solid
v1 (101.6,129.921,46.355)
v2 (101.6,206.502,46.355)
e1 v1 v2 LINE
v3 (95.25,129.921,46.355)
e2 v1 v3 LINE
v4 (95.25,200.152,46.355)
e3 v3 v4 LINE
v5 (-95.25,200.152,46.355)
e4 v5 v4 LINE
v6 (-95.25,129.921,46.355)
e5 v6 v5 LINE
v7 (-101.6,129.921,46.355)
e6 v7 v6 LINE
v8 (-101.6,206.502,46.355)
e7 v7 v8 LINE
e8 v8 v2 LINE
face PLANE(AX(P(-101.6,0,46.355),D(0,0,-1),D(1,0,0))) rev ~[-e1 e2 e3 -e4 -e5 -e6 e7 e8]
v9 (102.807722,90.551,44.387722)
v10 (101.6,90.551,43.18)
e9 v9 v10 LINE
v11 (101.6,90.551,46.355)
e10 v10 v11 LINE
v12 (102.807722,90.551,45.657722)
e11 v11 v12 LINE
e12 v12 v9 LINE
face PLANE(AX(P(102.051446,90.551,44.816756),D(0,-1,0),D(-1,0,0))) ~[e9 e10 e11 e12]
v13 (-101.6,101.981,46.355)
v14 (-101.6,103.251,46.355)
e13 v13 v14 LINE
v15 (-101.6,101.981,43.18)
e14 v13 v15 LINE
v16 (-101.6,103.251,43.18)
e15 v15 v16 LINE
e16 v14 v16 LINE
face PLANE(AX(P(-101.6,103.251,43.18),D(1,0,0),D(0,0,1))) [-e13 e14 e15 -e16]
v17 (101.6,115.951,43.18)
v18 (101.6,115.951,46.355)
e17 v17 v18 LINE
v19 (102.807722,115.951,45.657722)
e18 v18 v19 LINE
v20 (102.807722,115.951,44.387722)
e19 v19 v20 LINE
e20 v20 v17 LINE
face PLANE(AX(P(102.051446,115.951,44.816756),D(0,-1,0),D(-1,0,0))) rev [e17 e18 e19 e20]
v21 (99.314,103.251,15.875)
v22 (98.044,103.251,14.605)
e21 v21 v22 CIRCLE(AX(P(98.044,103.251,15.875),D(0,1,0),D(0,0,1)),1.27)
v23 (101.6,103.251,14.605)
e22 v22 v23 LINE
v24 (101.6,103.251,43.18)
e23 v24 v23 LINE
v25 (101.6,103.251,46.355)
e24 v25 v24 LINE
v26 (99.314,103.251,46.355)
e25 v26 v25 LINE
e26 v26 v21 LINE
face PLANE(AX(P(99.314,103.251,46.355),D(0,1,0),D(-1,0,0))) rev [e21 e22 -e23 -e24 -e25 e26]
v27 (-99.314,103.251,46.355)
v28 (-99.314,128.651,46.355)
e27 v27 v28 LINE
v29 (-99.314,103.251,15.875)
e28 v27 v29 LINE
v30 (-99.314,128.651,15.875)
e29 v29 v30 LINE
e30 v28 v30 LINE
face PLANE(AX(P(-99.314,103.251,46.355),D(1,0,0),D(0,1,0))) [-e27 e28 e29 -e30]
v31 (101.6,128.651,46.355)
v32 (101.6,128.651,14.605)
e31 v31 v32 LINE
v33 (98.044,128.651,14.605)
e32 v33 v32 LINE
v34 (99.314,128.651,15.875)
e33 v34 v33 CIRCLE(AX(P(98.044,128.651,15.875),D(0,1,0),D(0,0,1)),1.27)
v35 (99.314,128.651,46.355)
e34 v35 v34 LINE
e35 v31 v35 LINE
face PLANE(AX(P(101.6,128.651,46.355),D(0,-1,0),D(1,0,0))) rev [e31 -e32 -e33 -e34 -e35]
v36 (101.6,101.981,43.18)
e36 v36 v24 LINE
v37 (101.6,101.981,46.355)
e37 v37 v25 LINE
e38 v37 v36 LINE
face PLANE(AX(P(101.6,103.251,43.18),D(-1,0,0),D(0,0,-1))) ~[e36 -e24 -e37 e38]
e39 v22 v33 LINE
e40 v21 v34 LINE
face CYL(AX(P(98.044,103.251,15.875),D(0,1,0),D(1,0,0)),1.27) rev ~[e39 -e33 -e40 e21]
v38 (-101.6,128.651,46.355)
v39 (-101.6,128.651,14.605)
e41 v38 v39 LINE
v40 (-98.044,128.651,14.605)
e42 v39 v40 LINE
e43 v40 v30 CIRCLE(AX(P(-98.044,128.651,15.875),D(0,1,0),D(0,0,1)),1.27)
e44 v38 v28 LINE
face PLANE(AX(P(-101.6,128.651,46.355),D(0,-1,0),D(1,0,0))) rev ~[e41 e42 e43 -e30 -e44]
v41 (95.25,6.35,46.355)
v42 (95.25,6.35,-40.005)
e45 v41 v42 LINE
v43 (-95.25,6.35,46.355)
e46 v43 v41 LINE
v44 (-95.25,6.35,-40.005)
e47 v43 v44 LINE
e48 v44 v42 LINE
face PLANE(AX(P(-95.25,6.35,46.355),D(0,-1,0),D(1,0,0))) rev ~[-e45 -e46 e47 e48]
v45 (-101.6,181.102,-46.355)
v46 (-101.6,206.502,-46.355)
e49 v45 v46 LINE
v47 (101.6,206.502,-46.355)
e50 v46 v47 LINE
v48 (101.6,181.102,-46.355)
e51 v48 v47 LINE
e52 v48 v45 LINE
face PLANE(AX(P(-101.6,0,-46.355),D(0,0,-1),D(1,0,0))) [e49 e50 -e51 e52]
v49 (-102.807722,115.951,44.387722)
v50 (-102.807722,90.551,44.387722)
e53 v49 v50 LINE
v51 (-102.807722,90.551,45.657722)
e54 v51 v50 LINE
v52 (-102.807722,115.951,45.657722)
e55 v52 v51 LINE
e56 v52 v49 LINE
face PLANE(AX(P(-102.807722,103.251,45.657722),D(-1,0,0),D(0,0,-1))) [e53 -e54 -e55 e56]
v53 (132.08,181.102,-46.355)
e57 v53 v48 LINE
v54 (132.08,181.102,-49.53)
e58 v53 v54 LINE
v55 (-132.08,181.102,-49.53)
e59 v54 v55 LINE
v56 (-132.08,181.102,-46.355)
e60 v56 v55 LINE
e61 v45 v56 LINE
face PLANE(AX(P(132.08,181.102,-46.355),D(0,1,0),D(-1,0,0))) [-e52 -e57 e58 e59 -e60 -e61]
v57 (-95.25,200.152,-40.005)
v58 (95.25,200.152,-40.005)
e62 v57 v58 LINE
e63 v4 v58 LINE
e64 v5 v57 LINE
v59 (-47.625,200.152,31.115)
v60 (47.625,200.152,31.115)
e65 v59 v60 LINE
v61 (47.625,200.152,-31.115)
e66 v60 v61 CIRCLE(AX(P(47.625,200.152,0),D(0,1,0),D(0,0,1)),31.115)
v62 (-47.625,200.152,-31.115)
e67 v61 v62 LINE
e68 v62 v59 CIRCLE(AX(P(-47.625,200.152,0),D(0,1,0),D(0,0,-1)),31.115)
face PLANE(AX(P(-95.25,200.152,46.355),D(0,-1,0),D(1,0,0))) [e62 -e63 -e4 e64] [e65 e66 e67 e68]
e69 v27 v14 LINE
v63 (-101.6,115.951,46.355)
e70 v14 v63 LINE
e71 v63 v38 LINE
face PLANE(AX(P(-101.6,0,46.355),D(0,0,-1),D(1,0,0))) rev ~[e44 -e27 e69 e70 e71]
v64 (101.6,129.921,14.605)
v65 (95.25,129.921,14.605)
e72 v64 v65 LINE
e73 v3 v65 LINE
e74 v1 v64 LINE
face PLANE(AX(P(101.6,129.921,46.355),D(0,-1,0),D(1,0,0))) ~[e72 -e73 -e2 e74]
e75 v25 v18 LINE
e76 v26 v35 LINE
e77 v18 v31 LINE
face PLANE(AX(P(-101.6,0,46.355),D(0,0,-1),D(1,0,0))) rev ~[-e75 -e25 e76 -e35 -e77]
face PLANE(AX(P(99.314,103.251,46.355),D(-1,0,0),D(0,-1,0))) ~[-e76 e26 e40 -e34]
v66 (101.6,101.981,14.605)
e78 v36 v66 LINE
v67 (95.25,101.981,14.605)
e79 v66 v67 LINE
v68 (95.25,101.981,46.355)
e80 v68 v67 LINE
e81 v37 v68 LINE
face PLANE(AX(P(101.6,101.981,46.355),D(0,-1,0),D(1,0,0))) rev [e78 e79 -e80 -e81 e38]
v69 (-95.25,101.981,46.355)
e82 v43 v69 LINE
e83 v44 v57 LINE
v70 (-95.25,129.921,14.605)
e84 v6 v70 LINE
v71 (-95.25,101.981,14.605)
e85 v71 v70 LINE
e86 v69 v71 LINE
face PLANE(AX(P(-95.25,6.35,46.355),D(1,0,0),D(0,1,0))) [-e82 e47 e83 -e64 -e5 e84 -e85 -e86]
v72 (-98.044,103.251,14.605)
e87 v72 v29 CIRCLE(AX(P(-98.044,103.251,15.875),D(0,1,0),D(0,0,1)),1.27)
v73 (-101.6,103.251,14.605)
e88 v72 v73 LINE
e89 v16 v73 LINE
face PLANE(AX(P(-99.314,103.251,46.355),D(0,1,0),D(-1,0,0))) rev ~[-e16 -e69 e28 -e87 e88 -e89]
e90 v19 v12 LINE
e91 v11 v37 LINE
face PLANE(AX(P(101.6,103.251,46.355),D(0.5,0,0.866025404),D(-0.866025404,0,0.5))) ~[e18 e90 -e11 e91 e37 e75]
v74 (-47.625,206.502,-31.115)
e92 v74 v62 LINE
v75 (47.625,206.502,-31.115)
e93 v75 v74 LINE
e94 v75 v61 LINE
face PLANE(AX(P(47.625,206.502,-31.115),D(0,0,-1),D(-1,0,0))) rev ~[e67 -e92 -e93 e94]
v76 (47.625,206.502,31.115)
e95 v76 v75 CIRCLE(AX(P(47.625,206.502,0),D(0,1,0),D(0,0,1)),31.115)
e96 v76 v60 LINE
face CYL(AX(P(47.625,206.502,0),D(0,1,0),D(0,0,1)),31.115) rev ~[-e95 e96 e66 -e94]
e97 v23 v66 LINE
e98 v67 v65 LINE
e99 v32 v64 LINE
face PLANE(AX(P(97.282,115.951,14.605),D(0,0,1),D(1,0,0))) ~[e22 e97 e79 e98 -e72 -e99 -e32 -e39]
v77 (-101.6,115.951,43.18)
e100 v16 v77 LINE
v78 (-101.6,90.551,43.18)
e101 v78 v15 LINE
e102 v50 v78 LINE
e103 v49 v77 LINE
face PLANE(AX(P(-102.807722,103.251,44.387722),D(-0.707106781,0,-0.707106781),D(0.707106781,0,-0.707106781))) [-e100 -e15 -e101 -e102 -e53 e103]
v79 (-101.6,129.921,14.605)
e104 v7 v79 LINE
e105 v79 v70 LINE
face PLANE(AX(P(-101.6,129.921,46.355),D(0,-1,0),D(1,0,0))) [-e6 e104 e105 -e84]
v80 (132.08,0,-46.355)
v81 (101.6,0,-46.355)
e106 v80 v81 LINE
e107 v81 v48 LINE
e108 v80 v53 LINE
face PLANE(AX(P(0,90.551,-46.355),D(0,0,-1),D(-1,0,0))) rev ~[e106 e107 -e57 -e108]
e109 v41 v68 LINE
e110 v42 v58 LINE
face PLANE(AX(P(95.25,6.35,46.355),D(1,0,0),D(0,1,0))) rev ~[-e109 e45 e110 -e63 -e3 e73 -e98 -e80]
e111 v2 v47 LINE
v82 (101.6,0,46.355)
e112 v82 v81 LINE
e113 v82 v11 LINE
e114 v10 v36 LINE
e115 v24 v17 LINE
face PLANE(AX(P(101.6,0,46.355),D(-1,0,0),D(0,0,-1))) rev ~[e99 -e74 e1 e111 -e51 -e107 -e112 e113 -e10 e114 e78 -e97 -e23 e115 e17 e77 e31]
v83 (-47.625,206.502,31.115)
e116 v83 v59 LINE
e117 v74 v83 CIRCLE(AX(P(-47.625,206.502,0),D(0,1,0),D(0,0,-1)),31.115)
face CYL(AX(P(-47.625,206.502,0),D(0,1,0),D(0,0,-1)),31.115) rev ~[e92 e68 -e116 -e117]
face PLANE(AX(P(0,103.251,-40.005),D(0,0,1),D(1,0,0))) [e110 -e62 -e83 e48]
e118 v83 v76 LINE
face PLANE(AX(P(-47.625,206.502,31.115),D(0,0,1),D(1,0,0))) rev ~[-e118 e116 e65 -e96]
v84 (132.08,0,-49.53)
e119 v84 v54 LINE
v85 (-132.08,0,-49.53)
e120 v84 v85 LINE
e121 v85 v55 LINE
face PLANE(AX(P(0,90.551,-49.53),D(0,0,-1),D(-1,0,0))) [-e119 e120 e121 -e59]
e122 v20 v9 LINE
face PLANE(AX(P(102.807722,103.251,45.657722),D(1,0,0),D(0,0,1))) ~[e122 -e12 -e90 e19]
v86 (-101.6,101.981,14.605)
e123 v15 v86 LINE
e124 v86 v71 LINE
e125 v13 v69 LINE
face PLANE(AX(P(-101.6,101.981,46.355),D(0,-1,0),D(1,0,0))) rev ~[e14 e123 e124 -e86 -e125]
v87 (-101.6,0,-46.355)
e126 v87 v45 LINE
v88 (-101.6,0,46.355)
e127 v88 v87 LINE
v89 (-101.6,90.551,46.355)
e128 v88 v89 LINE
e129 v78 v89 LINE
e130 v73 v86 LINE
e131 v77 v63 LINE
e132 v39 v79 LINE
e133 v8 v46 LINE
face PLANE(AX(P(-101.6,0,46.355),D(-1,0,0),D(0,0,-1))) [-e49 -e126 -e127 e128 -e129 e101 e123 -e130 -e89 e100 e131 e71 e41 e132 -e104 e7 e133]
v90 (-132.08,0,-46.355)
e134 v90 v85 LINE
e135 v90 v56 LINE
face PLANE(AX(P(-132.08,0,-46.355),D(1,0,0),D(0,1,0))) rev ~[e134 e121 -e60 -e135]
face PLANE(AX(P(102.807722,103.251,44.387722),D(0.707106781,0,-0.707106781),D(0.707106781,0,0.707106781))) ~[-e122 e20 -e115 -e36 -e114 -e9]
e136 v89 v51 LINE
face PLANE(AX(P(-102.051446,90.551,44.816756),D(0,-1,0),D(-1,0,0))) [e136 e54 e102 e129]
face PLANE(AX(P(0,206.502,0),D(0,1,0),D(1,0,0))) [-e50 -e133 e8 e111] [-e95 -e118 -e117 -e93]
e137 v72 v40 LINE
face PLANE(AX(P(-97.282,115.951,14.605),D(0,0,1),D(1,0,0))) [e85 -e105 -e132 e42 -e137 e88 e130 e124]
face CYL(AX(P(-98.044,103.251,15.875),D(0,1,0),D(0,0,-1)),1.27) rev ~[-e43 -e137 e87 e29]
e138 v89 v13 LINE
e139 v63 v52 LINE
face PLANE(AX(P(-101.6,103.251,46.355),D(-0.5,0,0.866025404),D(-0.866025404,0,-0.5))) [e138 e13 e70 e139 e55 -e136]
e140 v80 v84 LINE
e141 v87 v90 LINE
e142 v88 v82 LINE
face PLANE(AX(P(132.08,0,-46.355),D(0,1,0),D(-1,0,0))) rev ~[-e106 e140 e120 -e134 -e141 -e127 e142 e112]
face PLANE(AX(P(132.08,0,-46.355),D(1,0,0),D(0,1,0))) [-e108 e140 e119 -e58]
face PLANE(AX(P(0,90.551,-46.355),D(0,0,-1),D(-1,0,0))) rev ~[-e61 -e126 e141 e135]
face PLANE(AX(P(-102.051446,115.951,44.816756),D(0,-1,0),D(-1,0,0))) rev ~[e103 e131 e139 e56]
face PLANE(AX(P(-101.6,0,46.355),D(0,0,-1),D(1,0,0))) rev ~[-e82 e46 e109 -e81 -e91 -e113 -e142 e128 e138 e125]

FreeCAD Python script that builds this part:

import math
import FreeCAD as App
import Part
import Sketcher

V = App.Vector
Q = App.Units.Quantity


def edges_at(feature, points):
    """Names of the edges that pass closest to the given points."""
    edges = feature.Shape.Edges
    near = lambda p: min(range(len(edges)), key=lambda i: edges[i].distToShape(Part.Vertex(*p))[0])
    return sorted({f"Edge{near(p) + 1}" for p in points})


def add_polygon(sketch, points):
    """Adds a closed chain of lines whose ends are joined by coincident constraints."""
    first, n = sketch.GeometryCount, len(points)
    for a, b in zip(points, points[1:] + points[:1]):
        sketch.addGeometry(Part.LineSegment(App.Vector(*a, 0), App.Vector(*b, 0)), False)
    for i in range(n):
        sketch.addConstraint(Sketcher.Constraint("Coincident", first + i, 2, first + (i + 1) % n, 1))

doc = App.newDocument("Part")
params = doc.addObject("Spreadsheet::Sheet", "Params")
for row, (alias, value) in enumerate([
    ("sketch1_width", "8 in"),
    ("sketch1_height", "3.65 in"),
    ("pad1_length", "8.13 in"),
    ("sketch2_width", "7.5 in"),
    ("sketch2_height", "7.63 in"),
    ("pocket1_length", "3.4 in"),
    ("sketch3_radius", "1.225 in"),
    ("sketch3_width", "3.75 in"),
    ("sketch4_width", "10.4 in"),
    ("sketch4_height", "7.13 in"),
    ("pad2_length", "0.125 in"),
    ("sketch5_height", "1 in"),
    ("sketch5_height2", "1.1 in"),
    ("sketch5_width", "0.09 in"),
    ("sketch5_width2", "0.25 in"),
    ("pocket3_length", "1.25 in"),
    ("fillet_radius", "0.05 in"),
    ("sketch6_height", "0.05 in"),
    ("sketch6_height2", "0.125 in"),
    ("pad3_length", "1 in"),
    ("fillet2_radius", "0.05 in"),
], start=1):
    params.set(f"A{row}", alias)
    params.set(f"B{row}", "=" + value)
    params.setAlias(f"B{row}", alias)

body = doc.addObject("PartDesign::Body", "Body")

sketch1 = doc.addObject("Sketcher::SketchObject", "Sketch")
body.addObject(sketch1)
sketch1.AttachmentSupport = (doc.XZ_Plane, [""])
sketch1.MapMode = "FlatFace"
add_polygon(sketch1, [(-101.6, -46.355), (-101.6, 46.355), (101.6, 46.355), (101.6, -46.355)])
sketch1.addConstraint(Sketcher.Constraint("Vertical", 0))
sketch1.addConstraint(Sketcher.Constraint("Horizontal", 1))
sketch1.addConstraint(Sketcher.Constraint("Vertical", 2))
sketch1.addConstraint(Sketcher.Constraint("Horizontal", 3))
sketch1.addConstraint(Sketcher.Constraint("Symmetric", 0, 2, 2, 2, -1, 1))
sketch1.addConstraint(Sketcher.Constraint("DistanceX", 1, 1, 1, 2, Q("8 in")))
sketch1.addConstraint(Sketcher.Constraint("DistanceY", 0, 1, 0, 2, Q("3.65 in")))
sketch1.setExpression("Constraints[9]", "Params.sketch1_width")
sketch1.setExpression("Constraints[10]", "Params.sketch1_height")
pad1 = doc.addObject("PartDesign::Pad", "Pad")
body.addObject(pad1)
pad1.Profile = sketch1
pad1.setExpression("Length", "Params.pad1_length")
pad1.Reversed = True

sketch2 = doc.addObject("Sketcher::SketchObject", "Sketch001")
body.addObject(sketch2)
sketch2.AttachmentSupport = (doc.XY_Plane, [""])
sketch2.MapMode = "FlatFace"
sketch2.AttachmentOffset = App.Placement(V(0, 0, 1.825 * 25.4), App.Rotation())
add_polygon(sketch2, [(-95.25, 200.152), (-95.25, 6.35), (95.25, 6.35), (95.25, 200.152)])
sketch2.addConstraint(Sketcher.Constraint("Vertical", 0))
sketch2.addConstraint(Sketcher.Constraint("Horizontal", 1))
sketch2.addConstraint(Sketcher.Constraint("Vertical", 2))
sketch2.addConstraint(Sketcher.Constraint("Horizontal", 3))
sketch2.addConstraint(Sketcher.Constraint("DistanceX", 1, 1, 1, 2, Q("7.5 in")))
sketch2.addConstraint(Sketcher.Constraint("DistanceY", 0, 2, 0, 1, Q("7.63 in")))
sketch2.addConstraint(Sketcher.Constraint("DistanceX", 0, 2, -1, 1, Q("3.75 in")))
sketch2.addConstraint(Sketcher.Constraint("DistanceY", -1, 1, 0, 2, Q("0.25 in")))
sketch2.setExpression("Constraints[8]", "Params.sketch2_width")
sketch2.setExpression("Constraints[9]", "Params.sketch2_height")
pocket1 = doc.addObject("PartDesign::Pocket", "Pocket")
body.addObject(pocket1)
pocket1.Profile = sketch2
pocket1.setExpression("Length", "Params.pocket1_length")

sketch3 = doc.addObject("Sketcher::SketchObject", "Sketch002")
body.addObject(sketch3)
sketch3.AttachmentSupport = (doc.XZ_Plane, [""])
sketch3.MapMode = "FlatFace"
sketch3.AttachmentOffset = App.Placement(V(0, 0, -8.13 * 25.4), App.Rotation())
sketch3.addGeometry(Part.LineSegment(V(47.625, 31.115, 0), V(-47.625, 31.115, 0)), False)
sketch3.addGeometry(Part.ArcOfCircle(Part.Circle(V(-47.625, 0, 0), V(0, 0, 1), 31.115), math.radians(90), math.radians(270)), False)
sketch3.addGeometry(Part.LineSegment(V(-47.625, -31.115, 0), V(47.625, -31.115, 0)), False)
sketch3.addGeometry(Part.ArcOfCircle(Part.Circle(V(47.625, 0, 0), V(0, 0, 1), 31.115), math.radians(-90), math.radians(90)), False)
sketch3.addConstraint(Sketcher.Constraint("Tangent", 0, 2, 1, 1))
sketch3.addConstraint(Sketcher.Constraint("Tangent", 1, 2, 2, 1))
sketch3.addConstraint(Sketcher.Constraint("Tangent", 2, 2, 3, 1))
sketch3.addConstraint(Sketcher.Constraint("Tangent", 3, 2, 0, 1))
sketch3.addConstraint(Sketcher.Constraint("Horizontal", 0))
sketch3.addConstraint(Sketcher.Constraint("Horizontal", 2))
sketch3.addConstraint(Sketcher.Constraint("Symmetric", 1, 3, 3, 3, -1, 1))
sketch3.addConstraint(Sketcher.Constraint("Radius", 1, Q("1.225 in")))
sketch3.addConstraint(Sketcher.Constraint("DistanceX", 0, 2, 0, 1, Q("3.75 in")))
sketch3.setExpression("Constraints[7]", "Params.sketch3_radius")
sketch3.setExpression("Constraints[8]", "Params.sketch3_width")
pocket2 = doc.addObject("PartDesign::Pocket", "Pocket001")
body.addObject(pocket2)
pocket2.Profile = sketch3
pocket2.Type = "UpToFirst"
pocket2.Reversed = True

sketch4 = doc.addObject("Sketcher::SketchObject", "Sketch003")
body.addObject(sketch4)
sketch4.AttachmentSupport = (doc.XY_Plane, [""])
sketch4.MapMode = "FlatFace"
sketch4.AttachmentOffset = App.Placement(V(0, 0, -1.825 * 25.4), App.Rotation())
add_polygon(sketch4, [(132.08, 181.102), (132.08, 0), (-132.08, 0), (-132.08, 181.102)])
sketch4.addConstraint(Sketcher.Constraint("Vertical", 0))
sketch4.addConstraint(Sketcher.Constraint("Horizontal", 1))
sketch4.addConstraint(Sketcher.Constraint("Vertical", 2))
sketch4.addConstraint(Sketcher.Constraint("Horizontal", 3))
sketch4.addConstraint(Sketcher.Constraint("Symmetric", 0, 2, 1, 2, -1, 1))
sketch4.addConstraint(Sketcher.Constraint("DistanceX", 1, 2, 1, 1, Q("10.4 in")))
sketch4.addConstraint(Sketcher.Constraint("DistanceY", 0, 2, 0, 1, Q("7.13 in")))
sketch4.setExpression("Constraints[9]", "Params.sketch4_width")
sketch4.setExpression("Constraints[10]", "Params.sketch4_height")
pad2 = doc.addObject("PartDesign::Pad", "Pad001")
body.addObject(pad2)
pad2.Profile = sketch4
pad2.setExpression("Length", "Params.pad2_length")
pad2.Reversed = True

sketch5 = doc.addObject("Sketcher::SketchObject", "Sketch004")
body.addObject(sketch5)
sketch5.AttachmentSupport = (doc.XY_Plane, [""])
sketch5.MapMode = "FlatFace"
sketch5.AttachmentOffset = App.Placement(V(0, 0, 1.825 * 25.4), App.Rotation())
add_polygon(sketch5, [(-99.314, 128.651), (-99.314, 103.251), (-101.6, 103.251), (-101.6, 101.981), (-95.25, 101.981), (-95.25, 129.921), (-101.6, 129.921), (-101.6, 128.651)])
sketch5.addConstraint(Sketcher.Constraint("Vertical", 0))
sketch5.addConstraint(Sketcher.Constraint("Horizontal", 1))
sketch5.addConstraint(Sketcher.Constraint("Vertical", 2))
sketch5.addConstraint(Sketcher.Constraint("Horizontal", 3))
sketch5.addConstraint(Sketcher.Constraint("Vertical", 4))
sketch5.addConstraint(Sketcher.Constraint("Horizontal", 5))
sketch5.addConstraint(Sketcher.Constraint("Vertical", 6))
sketch5.addConstraint(Sketcher.Constraint("Horizontal", 7))
sketch5.addConstraint(Sketcher.Constraint("Vertical", 2, 2, 5, 2))
sketch5.addConstraint(Sketcher.Constraint("Equal", 2, 6))
sketch5.addConstraint(Sketcher.Constraint("DistanceY", 0, 2, 0, 1, Q("1 in")))
sketch5.addConstraint(Sketcher.Constraint("DistanceY", 4, 1, 4, 2, Q("1.1 in")))
sketch5.addConstraint(Sketcher.Constraint("DistanceX", 1, 2, -1, 1, Q("4 in")))
sketch5.addConstraint(Sketcher.Constraint("DistanceX", 1, 2, 1, 1, Q("0.09 in")))
sketch5.addConstraint(Sketcher.Constraint("DistanceX", 3, 1, 3, 2, Q("0.25 in")))
sketch5.addConstraint(Sketcher.Constraint("DistanceY", -1, 1, 0, 2, Q("4.065 in")))
sketch5.setExpression("Constraints[18]", "Params.sketch5_height")
sketch5.setExpression("Constraints[19]", "Params.sketch5_height2")
sketch5.setExpression("Constraints[21]", "Params.sketch5_width")
sketch5.setExpression("Constraints[22]", "Params.sketch5_width2")
pocket3 = doc.addObject("PartDesign::Pocket", "Pocket002")
body.addObject(pocket3)
pocket3.Profile = sketch5
pocket3.setExpression("Length", "Params.pocket3_length")
doc.recompute()

fillet = doc.addObject("PartDesign::Fillet", "Fillet")
body.addObject(fillet)
fillet.Base = (pocket3, edges_at(pocket3, [(-99.314, 115.951, 14.605)]))
fillet.setExpression("Radius", "Params.fillet_radius")

sketch6 = doc.addObject("Sketcher::SketchObject", "Sketch005")
body.addObject(sketch6)
sketch6.AttachmentSupport = (doc.XZ_Plane, [""])
sketch6.MapMode = "FlatFace"
sketch6.AttachmentOffset = App.Placement(V(0, 0, -4.065 * 25.4), App.Rotation())
add_polygon(sketch6, [(-101.6, 46.355), (-102.807722, 45.657722), (-102.807722, 44.387722), (-101.6, 43.18)])
sketch6.addConstraint(Sketcher.Constraint("Vertical", 1))
sketch6.addConstraint(Sketcher.Constraint("Vertical", 3))
sketch6.addConstraint(Sketcher.Constraint("DistanceX", 2, 2, -1, 1, Q("4 in")))
sketch6.addConstraint(Sketcher.Constraint("Angle", 0, Q("-150 deg")))
sketch6.addConstraint(Sketcher.Constraint("Angle", 2, Q("-45 deg")))
sketch6.addConstraint(Sketcher.Constraint("DistanceY", 1, 2, 1, 1, Q("0.05 in")))
sketch6.addConstraint(Sketcher.Constraint("DistanceY", -1, 1, 2, 2, Q("1.7 in")))
sketch6.addConstraint(Sketcher.Constraint("DistanceY", 3, 1, 3, 2, Q("0.125 in")))
sketch6.setExpression("Constraints[9]", "Params.sketch6_height")
sketch6.setExpression("Constraints[11]", "Params.sketch6_height2")
pad3 = doc.addObject("PartDesign::Pad", "Pad002")
body.addObject(pad3)
pad3.Profile = sketch6
pad3.setExpression("Length", "Params.pad3_length")
pad3.Midplane = True
doc.recompute()

mirrored = doc.addObject("PartDesign::Mirrored", "Mirrored")
body.addObject(mirrored)
mirrored.Originals = [pocket3, pad3]
mirrored.MirrorPlane = (doc.YZ_Plane, [""])
body.Tip = mirrored
doc.recompute()

fillet2 = doc.addObject("PartDesign::Fillet", "Fillet001")
body.addObject(fillet2)
fillet2.Base = (mirrored, edges_at(mirrored, [(99.314, 115.951, 14.605)]))
fillet2.setExpression("Radius", "Params.fillet2_radius")

doc.recompute()
